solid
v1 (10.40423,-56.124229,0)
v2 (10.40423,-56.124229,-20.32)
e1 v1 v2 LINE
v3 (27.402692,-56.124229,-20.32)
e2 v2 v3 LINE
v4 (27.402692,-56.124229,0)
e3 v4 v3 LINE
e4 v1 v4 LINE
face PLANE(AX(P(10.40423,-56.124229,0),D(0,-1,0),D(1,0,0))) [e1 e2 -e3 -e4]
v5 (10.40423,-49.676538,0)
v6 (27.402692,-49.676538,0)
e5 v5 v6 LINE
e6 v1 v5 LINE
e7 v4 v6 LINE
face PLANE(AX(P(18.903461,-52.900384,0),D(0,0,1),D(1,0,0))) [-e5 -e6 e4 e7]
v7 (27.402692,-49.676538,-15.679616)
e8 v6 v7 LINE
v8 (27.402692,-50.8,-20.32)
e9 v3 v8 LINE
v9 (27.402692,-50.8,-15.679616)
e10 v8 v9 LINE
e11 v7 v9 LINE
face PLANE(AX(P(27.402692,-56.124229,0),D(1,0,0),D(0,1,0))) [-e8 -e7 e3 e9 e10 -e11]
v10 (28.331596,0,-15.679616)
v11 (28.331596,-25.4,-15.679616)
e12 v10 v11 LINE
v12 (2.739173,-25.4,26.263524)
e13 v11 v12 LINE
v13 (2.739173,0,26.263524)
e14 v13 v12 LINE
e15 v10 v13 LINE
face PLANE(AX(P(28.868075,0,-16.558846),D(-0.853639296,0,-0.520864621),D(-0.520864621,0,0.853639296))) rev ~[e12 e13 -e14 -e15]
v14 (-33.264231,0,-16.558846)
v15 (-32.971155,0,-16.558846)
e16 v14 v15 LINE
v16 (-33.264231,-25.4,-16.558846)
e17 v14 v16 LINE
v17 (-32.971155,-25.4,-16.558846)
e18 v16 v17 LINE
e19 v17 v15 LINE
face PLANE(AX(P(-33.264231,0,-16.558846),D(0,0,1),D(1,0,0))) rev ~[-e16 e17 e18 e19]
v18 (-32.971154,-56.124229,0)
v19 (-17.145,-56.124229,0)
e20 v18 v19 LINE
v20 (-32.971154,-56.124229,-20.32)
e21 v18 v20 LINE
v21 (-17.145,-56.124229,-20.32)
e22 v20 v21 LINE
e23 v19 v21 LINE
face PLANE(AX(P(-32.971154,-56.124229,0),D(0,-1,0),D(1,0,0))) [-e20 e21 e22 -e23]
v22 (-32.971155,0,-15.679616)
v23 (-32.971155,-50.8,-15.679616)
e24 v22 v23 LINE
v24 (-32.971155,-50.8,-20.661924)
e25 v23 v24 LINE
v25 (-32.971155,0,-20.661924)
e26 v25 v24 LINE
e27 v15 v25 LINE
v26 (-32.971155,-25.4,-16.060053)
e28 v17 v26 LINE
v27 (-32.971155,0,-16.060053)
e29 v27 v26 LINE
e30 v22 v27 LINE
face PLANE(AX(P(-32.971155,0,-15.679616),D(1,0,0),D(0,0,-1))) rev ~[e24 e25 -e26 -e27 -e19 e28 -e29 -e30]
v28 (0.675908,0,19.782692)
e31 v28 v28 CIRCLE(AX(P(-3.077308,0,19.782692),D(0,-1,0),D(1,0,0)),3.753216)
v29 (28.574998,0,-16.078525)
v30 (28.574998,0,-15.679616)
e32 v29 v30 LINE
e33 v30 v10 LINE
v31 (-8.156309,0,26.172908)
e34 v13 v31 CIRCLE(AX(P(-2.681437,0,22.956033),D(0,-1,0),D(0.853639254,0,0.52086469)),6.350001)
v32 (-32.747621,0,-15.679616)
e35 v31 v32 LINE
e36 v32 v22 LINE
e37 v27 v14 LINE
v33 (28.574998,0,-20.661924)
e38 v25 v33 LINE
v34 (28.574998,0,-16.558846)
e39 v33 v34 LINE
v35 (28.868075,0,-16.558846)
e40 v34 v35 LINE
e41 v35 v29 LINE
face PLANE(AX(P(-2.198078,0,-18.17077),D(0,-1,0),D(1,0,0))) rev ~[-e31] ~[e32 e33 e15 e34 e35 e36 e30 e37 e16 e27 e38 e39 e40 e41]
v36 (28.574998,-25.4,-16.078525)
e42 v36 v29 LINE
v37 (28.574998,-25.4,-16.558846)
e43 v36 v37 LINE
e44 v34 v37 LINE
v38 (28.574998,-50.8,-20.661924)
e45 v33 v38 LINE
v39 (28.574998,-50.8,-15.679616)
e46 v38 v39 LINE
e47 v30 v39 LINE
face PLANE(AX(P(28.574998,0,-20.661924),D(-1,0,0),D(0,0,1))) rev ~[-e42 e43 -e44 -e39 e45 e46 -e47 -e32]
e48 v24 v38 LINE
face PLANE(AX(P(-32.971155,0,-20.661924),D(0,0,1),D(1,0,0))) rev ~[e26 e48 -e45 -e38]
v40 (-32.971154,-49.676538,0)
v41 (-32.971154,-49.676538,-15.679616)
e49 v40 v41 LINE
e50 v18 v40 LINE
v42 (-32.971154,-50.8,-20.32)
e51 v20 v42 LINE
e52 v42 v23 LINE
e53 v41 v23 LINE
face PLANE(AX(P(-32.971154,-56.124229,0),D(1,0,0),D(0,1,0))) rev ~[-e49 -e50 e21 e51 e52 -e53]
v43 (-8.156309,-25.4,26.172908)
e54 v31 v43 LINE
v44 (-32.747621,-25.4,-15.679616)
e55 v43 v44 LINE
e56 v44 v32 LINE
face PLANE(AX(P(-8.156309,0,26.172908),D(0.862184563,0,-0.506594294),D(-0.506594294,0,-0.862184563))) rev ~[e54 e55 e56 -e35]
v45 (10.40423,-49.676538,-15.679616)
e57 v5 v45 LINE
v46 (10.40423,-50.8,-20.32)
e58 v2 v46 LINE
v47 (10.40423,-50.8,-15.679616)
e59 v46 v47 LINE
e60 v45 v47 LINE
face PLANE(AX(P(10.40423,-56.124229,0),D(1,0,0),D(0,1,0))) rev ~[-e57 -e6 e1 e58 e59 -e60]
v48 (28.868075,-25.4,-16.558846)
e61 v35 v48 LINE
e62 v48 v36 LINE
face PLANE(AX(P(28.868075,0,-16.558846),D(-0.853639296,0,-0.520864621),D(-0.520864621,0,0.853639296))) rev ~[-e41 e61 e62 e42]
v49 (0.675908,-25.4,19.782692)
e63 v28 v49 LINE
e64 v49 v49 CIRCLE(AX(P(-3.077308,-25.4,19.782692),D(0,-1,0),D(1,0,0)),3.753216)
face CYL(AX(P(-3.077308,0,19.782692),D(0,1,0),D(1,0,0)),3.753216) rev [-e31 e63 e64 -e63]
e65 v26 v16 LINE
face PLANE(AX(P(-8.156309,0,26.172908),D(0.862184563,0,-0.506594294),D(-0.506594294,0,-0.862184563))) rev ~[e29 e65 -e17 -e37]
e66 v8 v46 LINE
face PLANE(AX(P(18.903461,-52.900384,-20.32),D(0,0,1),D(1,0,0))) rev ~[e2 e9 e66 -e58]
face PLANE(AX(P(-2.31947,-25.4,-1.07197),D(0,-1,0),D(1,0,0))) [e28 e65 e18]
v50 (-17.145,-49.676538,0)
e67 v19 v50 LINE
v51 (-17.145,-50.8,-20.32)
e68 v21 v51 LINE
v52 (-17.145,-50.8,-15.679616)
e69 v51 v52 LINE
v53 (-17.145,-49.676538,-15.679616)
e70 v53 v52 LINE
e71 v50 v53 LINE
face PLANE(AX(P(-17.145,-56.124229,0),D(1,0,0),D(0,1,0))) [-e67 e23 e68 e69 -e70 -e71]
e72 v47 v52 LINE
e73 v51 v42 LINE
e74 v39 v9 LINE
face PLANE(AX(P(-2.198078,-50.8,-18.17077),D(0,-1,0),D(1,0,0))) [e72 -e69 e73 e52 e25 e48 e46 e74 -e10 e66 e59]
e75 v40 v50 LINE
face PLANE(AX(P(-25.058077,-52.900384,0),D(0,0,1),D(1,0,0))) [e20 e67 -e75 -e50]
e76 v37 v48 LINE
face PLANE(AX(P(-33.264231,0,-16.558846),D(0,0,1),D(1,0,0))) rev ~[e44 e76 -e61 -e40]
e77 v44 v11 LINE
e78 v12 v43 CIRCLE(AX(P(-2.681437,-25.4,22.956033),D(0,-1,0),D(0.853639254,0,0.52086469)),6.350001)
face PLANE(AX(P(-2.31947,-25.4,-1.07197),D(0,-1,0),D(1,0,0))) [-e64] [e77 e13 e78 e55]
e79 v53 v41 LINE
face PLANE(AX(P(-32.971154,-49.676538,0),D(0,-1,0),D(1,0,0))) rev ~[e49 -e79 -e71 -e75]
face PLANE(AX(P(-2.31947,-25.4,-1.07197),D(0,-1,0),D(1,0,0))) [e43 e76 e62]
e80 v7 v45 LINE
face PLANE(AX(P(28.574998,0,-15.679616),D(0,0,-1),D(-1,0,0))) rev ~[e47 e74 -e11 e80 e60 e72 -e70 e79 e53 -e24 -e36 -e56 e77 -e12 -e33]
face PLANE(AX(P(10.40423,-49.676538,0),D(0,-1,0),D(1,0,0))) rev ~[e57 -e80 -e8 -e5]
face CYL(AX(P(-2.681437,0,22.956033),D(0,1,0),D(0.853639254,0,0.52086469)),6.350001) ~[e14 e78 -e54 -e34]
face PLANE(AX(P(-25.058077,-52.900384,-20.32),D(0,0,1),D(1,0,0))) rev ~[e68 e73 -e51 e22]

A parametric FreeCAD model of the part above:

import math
import FreeCAD as App
import Part
import Sketcher
from FreeCAD import Vector
Q = App.Units.Quantity


def add_polygon(sketch, points):
    """Adds a closed chain of lines whose ends are joined by coincident constraints."""
    first, n = sketch.GeometryCount, len(points)
    for a, b in zip(points, points[1:] + points[:1]):
        sketch.addGeometry(Part.LineSegment(App.Vector(*a, 0), App.Vector(*b, 0)), False)
    for i in range(n):
        sketch.addConstraint(Sketcher.Constraint("Coincident", first + i, 2, first + (i + 1) % n, 1))

doc = App.newDocument("Part")
params = doc.addObject("Spreadsheet::Sheet", "Params")
for row, (alias, value) in enumerate([
    ("sketch1_radius", "0.25 in"),
    ("pad1_length", "1 in"),
    ("pad2_length", "2 in"),
    ("pad3_length", "0.8 in"),
], start=1):
    params.set(f"A{row}", alias)
    params.set(f"B{row}", "=" + value)
    params.setAlias(f"B{row}", alias)

body = doc.addObject("PartDesign::Body", "Body")

# Sketch on XZ plane
sketch1 = body.newObject("Sketcher::SketchObject", "Sketch")
sketch1.AttachmentSupport = (doc.getObject("XZ_Plane"), [""])
sketch1.MapMode = "FlatFace"
sketch1.addGeometry(Part.LineSegment(Vector(-8.156309, 26.172908, 0), Vector(-33.264231, -16.558846, 0)), False)
sketch1.addGeometry(Part.LineSegment(Vector(-33.264231, -16.558846, 0), Vector(28.868075, -16.558846, 0)), False)
sketch1.addGeometry(Part.LineSegment(Vector(28.868075, -16.558846, 0), Vector(2.739173, 26.263524, 0)), False)
sketch1.addGeometry(Part.ArcOfCircle(Part.Circle(Vector(-2.681437, 22.956033, 0), Vector(0, 0, 1), 6.350001), math.radians(31.390271), math.radians(149.562747)), False)
sketch1.addGeometry(Part.Circle(Vector(-3.077308, 19.782692, 0), Vector(0, 0, 1), 3.753216), False)
sketch1.addConstraint(Sketcher.Constraint("Coincident", 0, 2, 1, 1))
sketch1.addConstraint(Sketcher.Constraint("Coincident", 1, 2, 2, 1))
sketch1.addConstraint(Sketcher.Constraint("Tangent", 2, 2, 3, 1))
sketch1.addConstraint(Sketcher.Constraint("Tangent", 3, 2, 0, 1))
sketch1.addConstraint(Sketcher.Constraint("Horizontal", 1))
sketch1.addConstraint(Sketcher.Constraint("Radius", 3, Q("0.25 in")))
sketch1.addConstraint(Sketcher.Constraint("Diameter", 4, Q("7.506432 mm")))
sketch1.addConstraint(Sketcher.Constraint("DistanceX", 2, 2, 1, 2, Q("26.128902 mm")))
sketch1.addConstraint(Sketcher.Constraint("DistanceX", 3, 2, 4, 3, Q("5.079001 mm")))
sketch1.addConstraint(Sketcher.Constraint("Distance", 0, Q("49.562189 mm")))
sketch1.addConstraint(Sketcher.Constraint("Distance", 2, Q("50.164478 mm")))
sketch1.addConstraint(Sketcher.Constraint("DistanceX", 0, 2, -1, 1, Q("33.264231 mm")))
sketch1.addConstraint(Sketcher.Constraint("DistanceY", -1, 1, 3, 2, Q("26.172908 mm")))
sketch1.addConstraint(Sketcher.Constraint("DistanceY", 4, 3, 3, 3, Q("3.173341 mm")))
sketch1.setExpression("Constraints[5]", "Params.sketch1_radius")
pad1 = body.newObject("PartDesign::Pad", "Pad")
pad1.Profile = sketch1
pad1.setExpression("Length", "Params.pad1_length")

# Sketch on XZ plane
sketch2 = body.newObject("Sketcher::SketchObject", "Sketch001")
sketch2.AttachmentSupport = (doc.getObject("XZ_Plane"), [""])
sketch2.MapMode = "FlatFace"
add_polygon(sketch2, [(28.574998, -15.679616), (-32.971155, -15.679616), (-32.971155, -20.661924), (28.574998, -20.661924)])  # lines 0-3
sketch2.addConstraint(Sketcher.Constraint("Horizontal", 0))
sketch2.addConstraint(Sketcher.Constraint("Vertical", 1))
sketch2.addConstraint(Sketcher.Constraint("Horizontal", 2))
sketch2.addConstraint(Sketcher.Constraint("Vertical", 3))
sketch2.addConstraint(Sketcher.Constraint("DistanceX", -1, 1, 2, 2, Q("1.1249999 in")))
sketch2.addConstraint(Sketcher.Constraint("DistanceX", 0, 2, 0, 1, Q("61.546153 mm")))
sketch2.addConstraint(Sketcher.Constraint("DistanceY", 1, 2, 1, 1, Q("4.982308 mm")))
sketch2.addConstraint(Sketcher.Constraint("DistanceY", 0, 2, -1, 1, Q("15.679616 mm")))
pad2 = body.newObject("PartDesign::Pad", "Pad001")
pad2.Profile = sketch2
pad2.setExpression("Length", "Params.pad2_length")

# Sketch on XY plane
sketch3 = body.newObject("Sketcher::SketchObject", "Sketch002")
sketch3.AttachmentSupport = (doc.getObject("XY_Plane"), [""])
sketch3.MapMode = "FlatFace"
add_polygon(sketch3, [(-32.971154, -49.676538), (-32.971154, -56.124229), (-17.145, -56.124229), (-17.145, -49.676538)])  # lines 0-3
add_polygon(sketch3, [(10.40423, -49.676538), (10.40423, -56.124229), (27.402692, -56.124229), (27.402692, -49.676538)])  # lines 4-7
sketch3.addConstraint(Sketcher.Constraint("Vertical", 0))
sketch3.addConstraint(Sketcher.Constraint("Horizontal", 1))
sketch3.addConstraint(Sketcher.Constraint("Vertical", 2))
sketch3.addConstraint(Sketcher.Constraint("Horizontal", 3))
sketch3.addConstraint(Sketcher.Constraint("Vertical", 4))
sketch3.addConstraint(Sketcher.Constraint("Horizontal", 5))
sketch3.addConstraint(Sketcher.Constraint("Vertical", 6))
sketch3.addConstraint(Sketcher.Constraint("Horizontal", 7))
sketch3.addConstraint(Sketcher.Constraint("Horizontal", 1, 2, 4, 2))
sketch3.addConstraint(Sketcher.Constraint("Horizontal", 3, 2, 6, 2))
sketch3.addConstraint(Sketcher.Constraint("DistanceX", 1, 2, -1, 1, Q("0.675 in")))
sketch3.addConstraint(Sketcher.Constraint("DistanceX", 5, 1, 5, 2, Q("16.998462 mm")))
sketch3.addConstraint(Sketcher.Constraint("DistanceY", 0, 2, 0, 1, Q("6.447691 mm")))
sketch3.addConstraint(Sketcher.Constraint("DistanceX", 1, 1, 1, 2, Q("15.826155 mm")))
sketch3.addConstraint(Sketcher.Constraint("DistanceY", 0, 2, -1, 1, Q("56.124229 mm")))
sketch3.addConstraint(Sketcher.Constraint("DistanceX", -1, 1, 4, 2, Q("10.40423 mm")))
pad3 = body.newObject("PartDesign::Pad", "Pad002")
pad3.Profile = sketch3
pad3.setExpression("Length", "Params.pad3_length")
pad3.Reversed = True

doc.recompute()
